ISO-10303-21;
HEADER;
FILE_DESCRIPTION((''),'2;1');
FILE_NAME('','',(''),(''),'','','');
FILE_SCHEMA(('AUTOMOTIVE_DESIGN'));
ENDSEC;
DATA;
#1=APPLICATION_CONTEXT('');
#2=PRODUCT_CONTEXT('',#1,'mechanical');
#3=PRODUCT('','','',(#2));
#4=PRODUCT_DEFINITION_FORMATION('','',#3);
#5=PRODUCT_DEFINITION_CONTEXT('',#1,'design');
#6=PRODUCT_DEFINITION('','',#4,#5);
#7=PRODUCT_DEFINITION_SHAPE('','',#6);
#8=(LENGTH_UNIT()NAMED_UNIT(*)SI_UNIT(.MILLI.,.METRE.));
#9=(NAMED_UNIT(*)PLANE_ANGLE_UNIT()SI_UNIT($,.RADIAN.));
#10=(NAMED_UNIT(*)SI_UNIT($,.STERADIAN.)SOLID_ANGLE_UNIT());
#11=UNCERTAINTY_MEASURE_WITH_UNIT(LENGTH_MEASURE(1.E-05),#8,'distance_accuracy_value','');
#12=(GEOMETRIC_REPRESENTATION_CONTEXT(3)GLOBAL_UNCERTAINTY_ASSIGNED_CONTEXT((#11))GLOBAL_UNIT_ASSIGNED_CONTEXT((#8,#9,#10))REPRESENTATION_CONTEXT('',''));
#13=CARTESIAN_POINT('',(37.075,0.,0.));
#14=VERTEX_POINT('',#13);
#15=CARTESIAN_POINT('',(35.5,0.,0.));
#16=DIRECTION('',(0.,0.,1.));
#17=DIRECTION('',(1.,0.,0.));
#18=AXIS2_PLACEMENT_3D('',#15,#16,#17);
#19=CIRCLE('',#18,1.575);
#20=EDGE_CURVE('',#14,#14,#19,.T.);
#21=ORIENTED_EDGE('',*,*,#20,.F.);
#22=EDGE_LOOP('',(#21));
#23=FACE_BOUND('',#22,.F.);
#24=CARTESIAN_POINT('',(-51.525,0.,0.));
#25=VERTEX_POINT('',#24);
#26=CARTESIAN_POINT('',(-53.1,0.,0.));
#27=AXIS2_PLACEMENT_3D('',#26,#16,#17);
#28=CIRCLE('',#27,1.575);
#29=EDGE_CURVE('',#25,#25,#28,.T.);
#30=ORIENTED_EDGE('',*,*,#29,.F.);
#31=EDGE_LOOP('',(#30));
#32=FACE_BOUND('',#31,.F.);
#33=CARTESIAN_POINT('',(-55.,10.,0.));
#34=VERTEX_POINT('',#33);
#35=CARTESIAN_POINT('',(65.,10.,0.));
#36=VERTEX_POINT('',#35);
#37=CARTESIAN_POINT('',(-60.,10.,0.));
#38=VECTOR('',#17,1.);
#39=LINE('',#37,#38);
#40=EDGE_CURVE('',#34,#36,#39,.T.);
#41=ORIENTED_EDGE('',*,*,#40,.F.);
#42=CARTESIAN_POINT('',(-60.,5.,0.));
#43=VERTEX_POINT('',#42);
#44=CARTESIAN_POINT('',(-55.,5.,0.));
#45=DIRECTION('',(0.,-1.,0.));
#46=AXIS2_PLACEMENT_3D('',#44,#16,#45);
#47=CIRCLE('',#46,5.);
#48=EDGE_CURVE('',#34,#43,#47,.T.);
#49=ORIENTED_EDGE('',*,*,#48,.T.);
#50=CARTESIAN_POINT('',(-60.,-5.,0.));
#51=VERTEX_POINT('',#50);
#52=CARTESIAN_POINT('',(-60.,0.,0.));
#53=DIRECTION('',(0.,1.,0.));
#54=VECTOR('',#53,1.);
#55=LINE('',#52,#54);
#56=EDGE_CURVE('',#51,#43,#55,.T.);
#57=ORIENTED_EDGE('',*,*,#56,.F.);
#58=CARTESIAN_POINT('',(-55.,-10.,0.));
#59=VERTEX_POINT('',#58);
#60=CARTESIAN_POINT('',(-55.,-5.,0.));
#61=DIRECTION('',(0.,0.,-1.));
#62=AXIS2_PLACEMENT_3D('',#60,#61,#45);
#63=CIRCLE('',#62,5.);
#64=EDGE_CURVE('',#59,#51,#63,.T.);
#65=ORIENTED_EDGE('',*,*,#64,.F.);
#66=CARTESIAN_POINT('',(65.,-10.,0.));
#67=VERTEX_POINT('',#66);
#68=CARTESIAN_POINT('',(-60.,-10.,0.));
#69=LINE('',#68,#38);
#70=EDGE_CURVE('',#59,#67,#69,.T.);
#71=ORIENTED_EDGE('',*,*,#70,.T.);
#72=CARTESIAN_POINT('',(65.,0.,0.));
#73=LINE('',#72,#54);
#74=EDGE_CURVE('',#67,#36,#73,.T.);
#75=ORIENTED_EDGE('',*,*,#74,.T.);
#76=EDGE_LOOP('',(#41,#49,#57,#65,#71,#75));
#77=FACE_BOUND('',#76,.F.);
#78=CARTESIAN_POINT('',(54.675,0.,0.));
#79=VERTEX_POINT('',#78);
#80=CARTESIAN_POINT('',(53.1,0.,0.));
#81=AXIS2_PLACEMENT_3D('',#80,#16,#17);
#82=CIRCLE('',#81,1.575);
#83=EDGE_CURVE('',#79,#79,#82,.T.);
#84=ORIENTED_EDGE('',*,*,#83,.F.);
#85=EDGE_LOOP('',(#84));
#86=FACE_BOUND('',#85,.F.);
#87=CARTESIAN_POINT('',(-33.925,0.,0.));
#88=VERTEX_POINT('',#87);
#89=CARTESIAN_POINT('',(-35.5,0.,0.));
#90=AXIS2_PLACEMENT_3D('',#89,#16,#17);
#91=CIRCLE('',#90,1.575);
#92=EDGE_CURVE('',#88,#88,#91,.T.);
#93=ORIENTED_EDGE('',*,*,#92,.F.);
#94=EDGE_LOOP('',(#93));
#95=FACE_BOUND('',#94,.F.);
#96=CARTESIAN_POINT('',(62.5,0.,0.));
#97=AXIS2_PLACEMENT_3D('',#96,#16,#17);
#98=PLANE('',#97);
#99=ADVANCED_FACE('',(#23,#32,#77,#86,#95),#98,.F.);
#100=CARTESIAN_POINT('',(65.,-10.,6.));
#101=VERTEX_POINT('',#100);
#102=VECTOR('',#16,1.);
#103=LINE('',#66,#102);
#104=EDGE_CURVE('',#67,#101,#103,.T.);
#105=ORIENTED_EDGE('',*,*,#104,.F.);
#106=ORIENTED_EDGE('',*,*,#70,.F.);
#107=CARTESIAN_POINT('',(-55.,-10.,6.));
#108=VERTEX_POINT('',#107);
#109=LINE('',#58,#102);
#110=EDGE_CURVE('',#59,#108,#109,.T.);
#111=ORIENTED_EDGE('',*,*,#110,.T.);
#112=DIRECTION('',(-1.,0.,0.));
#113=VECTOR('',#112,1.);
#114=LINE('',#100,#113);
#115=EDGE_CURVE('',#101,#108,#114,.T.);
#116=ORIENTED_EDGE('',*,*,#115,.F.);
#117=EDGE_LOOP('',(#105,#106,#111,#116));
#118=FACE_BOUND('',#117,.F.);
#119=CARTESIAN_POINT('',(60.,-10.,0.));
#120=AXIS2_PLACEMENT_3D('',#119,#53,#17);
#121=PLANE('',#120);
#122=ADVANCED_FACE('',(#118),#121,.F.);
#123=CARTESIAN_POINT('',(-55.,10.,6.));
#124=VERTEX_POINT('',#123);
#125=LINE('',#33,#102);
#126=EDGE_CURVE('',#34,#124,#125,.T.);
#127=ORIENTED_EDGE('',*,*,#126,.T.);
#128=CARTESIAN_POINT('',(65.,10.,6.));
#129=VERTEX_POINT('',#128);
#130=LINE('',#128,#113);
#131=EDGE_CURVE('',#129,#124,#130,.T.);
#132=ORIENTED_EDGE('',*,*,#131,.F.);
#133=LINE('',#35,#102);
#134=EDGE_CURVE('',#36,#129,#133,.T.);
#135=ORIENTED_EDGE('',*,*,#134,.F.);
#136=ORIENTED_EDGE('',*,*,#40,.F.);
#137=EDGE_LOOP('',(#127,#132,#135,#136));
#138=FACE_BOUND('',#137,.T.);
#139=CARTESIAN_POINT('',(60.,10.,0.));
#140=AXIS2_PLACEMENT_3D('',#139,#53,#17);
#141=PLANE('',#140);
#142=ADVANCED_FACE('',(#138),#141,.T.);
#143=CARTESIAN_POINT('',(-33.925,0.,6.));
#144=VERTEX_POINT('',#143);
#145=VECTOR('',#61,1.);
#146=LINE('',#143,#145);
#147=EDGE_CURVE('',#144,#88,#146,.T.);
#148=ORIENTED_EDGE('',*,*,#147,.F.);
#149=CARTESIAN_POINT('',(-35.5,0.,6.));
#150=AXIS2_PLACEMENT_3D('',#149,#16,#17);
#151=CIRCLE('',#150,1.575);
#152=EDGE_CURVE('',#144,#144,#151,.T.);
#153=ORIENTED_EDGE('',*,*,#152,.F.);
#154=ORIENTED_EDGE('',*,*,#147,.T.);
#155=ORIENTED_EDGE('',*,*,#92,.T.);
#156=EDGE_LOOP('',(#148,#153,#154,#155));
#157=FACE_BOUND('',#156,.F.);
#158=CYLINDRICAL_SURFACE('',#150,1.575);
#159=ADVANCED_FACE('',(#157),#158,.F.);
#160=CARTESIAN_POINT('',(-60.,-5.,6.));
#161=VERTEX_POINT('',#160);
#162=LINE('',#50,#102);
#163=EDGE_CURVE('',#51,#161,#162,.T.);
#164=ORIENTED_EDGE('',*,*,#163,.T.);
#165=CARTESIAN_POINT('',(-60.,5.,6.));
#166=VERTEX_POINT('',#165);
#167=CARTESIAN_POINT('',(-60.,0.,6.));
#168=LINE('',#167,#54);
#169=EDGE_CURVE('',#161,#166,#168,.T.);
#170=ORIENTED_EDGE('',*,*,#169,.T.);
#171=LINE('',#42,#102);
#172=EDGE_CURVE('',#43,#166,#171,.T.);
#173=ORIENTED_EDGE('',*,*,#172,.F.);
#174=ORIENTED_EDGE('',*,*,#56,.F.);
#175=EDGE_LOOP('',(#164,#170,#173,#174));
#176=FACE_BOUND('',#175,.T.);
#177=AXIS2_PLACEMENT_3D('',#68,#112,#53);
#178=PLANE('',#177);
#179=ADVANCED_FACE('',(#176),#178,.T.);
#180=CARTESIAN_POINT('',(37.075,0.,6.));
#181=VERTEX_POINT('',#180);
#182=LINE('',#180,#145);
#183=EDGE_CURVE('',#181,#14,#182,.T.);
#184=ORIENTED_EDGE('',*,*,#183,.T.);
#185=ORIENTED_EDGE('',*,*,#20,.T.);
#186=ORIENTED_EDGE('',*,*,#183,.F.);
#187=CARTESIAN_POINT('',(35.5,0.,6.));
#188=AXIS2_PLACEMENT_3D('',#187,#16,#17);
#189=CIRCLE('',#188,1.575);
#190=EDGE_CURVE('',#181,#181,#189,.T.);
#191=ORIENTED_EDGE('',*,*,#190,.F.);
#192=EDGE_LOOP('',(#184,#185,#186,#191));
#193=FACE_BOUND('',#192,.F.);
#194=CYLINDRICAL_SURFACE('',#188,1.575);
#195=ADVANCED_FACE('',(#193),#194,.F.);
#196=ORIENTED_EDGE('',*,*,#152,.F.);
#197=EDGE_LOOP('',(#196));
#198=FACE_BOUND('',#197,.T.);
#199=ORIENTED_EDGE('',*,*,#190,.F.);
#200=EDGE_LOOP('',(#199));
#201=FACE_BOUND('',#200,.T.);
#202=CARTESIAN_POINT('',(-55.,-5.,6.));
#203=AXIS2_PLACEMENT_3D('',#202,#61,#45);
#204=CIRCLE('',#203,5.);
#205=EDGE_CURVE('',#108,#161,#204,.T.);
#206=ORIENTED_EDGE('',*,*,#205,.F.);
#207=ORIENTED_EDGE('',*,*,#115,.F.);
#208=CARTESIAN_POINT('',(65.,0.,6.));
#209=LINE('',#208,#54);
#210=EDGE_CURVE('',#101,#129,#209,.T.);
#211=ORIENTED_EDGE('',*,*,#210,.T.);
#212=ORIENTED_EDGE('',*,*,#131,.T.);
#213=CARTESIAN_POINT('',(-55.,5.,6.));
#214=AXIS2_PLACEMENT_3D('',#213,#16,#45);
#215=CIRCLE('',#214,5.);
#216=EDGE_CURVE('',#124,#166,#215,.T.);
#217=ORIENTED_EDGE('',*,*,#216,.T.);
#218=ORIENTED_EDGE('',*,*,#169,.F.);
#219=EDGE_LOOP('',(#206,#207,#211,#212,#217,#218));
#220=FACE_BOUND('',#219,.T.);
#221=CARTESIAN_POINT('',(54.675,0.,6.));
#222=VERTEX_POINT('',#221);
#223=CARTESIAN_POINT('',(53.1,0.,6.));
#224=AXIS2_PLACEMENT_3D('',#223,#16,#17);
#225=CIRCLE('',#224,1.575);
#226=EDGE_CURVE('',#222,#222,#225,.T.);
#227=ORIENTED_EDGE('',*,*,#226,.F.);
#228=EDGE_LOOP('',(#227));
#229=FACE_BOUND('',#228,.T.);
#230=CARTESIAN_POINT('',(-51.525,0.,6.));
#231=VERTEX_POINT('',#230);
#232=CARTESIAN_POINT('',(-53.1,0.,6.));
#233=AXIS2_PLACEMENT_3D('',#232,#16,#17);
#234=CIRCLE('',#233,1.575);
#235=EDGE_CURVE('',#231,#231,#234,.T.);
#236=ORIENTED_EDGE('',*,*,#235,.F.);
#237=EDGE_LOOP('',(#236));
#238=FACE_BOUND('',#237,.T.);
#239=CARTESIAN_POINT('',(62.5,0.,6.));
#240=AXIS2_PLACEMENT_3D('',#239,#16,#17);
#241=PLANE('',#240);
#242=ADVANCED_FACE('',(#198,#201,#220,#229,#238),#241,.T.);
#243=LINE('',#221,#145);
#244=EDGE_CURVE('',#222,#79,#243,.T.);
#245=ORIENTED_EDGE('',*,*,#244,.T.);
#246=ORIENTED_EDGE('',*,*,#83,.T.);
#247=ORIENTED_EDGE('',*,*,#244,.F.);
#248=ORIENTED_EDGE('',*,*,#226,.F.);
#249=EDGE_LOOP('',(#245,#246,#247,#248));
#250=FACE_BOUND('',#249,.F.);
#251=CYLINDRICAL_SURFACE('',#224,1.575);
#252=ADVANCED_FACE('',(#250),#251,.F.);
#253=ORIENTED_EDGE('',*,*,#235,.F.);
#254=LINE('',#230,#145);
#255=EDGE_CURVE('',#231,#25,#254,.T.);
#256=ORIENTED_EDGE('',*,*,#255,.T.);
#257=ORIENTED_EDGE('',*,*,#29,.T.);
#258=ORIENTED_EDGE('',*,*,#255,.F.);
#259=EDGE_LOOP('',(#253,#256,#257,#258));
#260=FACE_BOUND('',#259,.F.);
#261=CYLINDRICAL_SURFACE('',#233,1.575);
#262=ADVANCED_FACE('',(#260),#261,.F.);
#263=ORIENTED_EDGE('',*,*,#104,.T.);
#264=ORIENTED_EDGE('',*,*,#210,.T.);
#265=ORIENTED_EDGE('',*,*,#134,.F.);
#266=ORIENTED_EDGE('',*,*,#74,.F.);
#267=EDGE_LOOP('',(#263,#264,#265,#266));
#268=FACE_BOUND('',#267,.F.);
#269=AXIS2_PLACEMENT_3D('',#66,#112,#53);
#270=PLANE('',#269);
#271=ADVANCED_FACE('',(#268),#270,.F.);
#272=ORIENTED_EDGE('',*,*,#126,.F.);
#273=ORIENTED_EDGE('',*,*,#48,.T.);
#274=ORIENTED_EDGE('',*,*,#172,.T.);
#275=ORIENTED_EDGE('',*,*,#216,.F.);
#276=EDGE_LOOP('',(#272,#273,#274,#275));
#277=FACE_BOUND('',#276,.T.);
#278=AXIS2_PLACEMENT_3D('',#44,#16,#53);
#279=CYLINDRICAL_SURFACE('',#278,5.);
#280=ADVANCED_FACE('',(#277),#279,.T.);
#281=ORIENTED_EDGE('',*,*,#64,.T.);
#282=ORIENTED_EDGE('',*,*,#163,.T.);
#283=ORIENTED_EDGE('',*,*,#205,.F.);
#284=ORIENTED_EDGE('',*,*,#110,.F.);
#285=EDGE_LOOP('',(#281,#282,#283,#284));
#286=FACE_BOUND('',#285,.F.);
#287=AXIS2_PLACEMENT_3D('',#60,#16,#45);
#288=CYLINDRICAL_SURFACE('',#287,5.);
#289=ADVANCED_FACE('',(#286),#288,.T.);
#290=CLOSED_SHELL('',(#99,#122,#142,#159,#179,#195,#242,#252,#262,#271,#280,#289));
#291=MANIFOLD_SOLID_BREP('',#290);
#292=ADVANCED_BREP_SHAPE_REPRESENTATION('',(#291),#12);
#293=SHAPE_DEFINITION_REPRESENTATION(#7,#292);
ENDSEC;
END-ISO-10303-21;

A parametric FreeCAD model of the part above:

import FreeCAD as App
import Part
import Sketcher
from FreeCAD import Vector


def edges_at(feature, points):
    """Names of the edges that pass closest to the given points."""
    edges = feature.Shape.Edges
    near = lambda p: min(range(len(edges)), key=lambda i: edges[i].distToShape(Part.Vertex(*p))[0])
    return sorted({f"Edge{near(p) + 1}" for p in points})

doc = App.newDocument("Part")
body = doc.addObject("PartDesign::Body", "Body")

# Sketch on XY plane
sketch1 = doc.addObject("Sketcher::SketchObject", "Sketch")
body.addObject(sketch1)
sketch1.AttachmentSupport = (doc.XY_Plane, [""])
sketch1.MapMode = "FlatFace"
sketch1.addGeometry(Part.LineSegment(Vector(-60, 10, 0), Vector(-60, -10, 0)), False)
sketch1.addGeometry(Part.LineSegment(Vector(-60, -10, 0), Vector(60, -10, 0)), False)
sketch1.addGeometry(Part.LineSegment(Vector(60, -10, 0), Vector(60, 10, 0)), False)
sketch1.addGeometry(Part.LineSegment(Vector(60, 10, 0), Vector(-60, 10, 0)), False)
sketch1.addConstraint(Sketcher.Constraint("Coincident", 0, 2, 1, 1))
sketch1.addConstraint(Sketcher.Constraint("Coincident", 1, 2, 2, 1))
sketch1.addConstraint(Sketcher.Constraint("Coincident", 2, 2, 3, 1))
sketch1.addConstraint(Sketcher.Constraint("Coincident", 3, 2, 0, 1))
sketch1.addConstraint(Sketcher.Constraint("Vertical", 0))
sketch1.addConstraint(Sketcher.Constraint("Horizontal", 1))
sketch1.addConstraint(Sketcher.Constraint("Vertical", 2))
sketch1.addConstraint(Sketcher.Constraint("Horizontal", 3))
sketch1.addConstraint(Sketcher.Constraint("Symmetric", 0, 2, 2, 2, -1, 1))
sketch1.addConstraint(Sketcher.Constraint("DistanceX", 1, 1, 1, 2, 120.0))
sketch1.addConstraint(Sketcher.Constraint("DistanceY", 0, 2, 0, 1, 20.0))
pad1 = doc.addObject("PartDesign::Pad", "Pad")
body.addObject(pad1)
pad1.Profile = sketch1
pad1.Length = 6

# Sketch on XY plane
sketch2 = doc.addObject("Sketcher::SketchObject", "Sketch001")
body.addObject(sketch2)
sketch2.AttachmentSupport = (doc.XY_Plane, [""])
sketch2.MapMode = "FlatFace"
sketch2.AttachmentOffset = App.Placement(Vector(0, 0, 6), App.Rotation())
sketch2.addGeometry(Part.Circle(Vector(-53.1, 0, 0), Vector(0, 0, 1), 1.575), False)
sketch2.addGeometry(Part.Circle(Vector(-35.5, 0, 0), Vector(0, 0, 1), 1.575), False)
sketch2.addGeometry(Part.Circle(Vector(53.1, 0, 0), Vector(0, 0, 1), 1.575), False)
sketch2.addGeometry(Part.Circle(Vector(35.5, 0, 0), Vector(0, 0, 1), 1.575), False)
sketch2.addConstraint(Sketcher.Constraint("Equal", 0, 1))
sketch2.addConstraint(Sketcher.Constraint("Equal", 1, 2))
sketch2.addConstraint(Sketcher.Constraint("Equal", 2, 3))
sketch2.addConstraint(Sketcher.Constraint("Symmetric", 0, 3, 2, 3, -1, 1))
sketch2.addConstraint(Sketcher.Constraint("Symmetric", 1, 3, 3, 3, -1, 1))
sketch2.addConstraint(Sketcher.Constraint("PointOnObject", 0, 3, -1))
sketch2.addConstraint(Sketcher.Constraint("PointOnObject", 1, 3, -1))
sketch2.addConstraint(Sketcher.Constraint("Diameter", 0, 3.15))
sketch2.addConstraint(Sketcher.Constraint("DistanceX", 1, 3, 3, 3, 71.0))
sketch2.addConstraint(Sketcher.Constraint("DistanceX", 0, 3, -1, 1, 53.1))
pocket1 = doc.addObject("PartDesign::Pocket", "Pocket")
body.addObject(pocket1)
pocket1.Profile = sketch2
pocket1.Type = "ThroughAll"

# Sketch on XY plane
sketch3 = doc.addObject("Sketcher::SketchObject", "Sketch002")
body.addObject(sketch3)
sketch3.AttachmentSupport = (doc.XY_Plane, [""])
sketch3.MapMode = "FlatFace"
sketch3.addGeometry(Part.LineSegment(Vector(60, 10, 0), Vector(60, -10, 0)), False)
sketch3.addGeometry(Part.LineSegment(Vector(60, -10, 0), Vector(65, -10, 0)), False)
sketch3.addGeometry(Part.LineSegment(Vector(65, -10, 0), Vector(65, 10, 0)), False)
sketch3.addGeometry(Part.LineSegment(Vector(65, 10, 0), Vector(60, 10, 0)), False)
sketch3.addConstraint(Sketcher.Constraint("Coincident", 0, 2, 1, 1))
sketch3.addConstraint(Sketcher.Constraint("Coincident", 1, 2, 2, 1))
sketch3.addConstraint(Sketcher.Constraint("Coincident", 2, 2, 3, 1))
sketch3.addConstraint(Sketcher.Constraint("Coincident", 3, 2, 0, 1))
sketch3.addConstraint(Sketcher.Constraint("Vertical", 0))
sketch3.addConstraint(Sketcher.Constraint("Horizontal", 1))
sketch3.addConstraint(Sketcher.Constraint("Vertical", 2))
sketch3.addConstraint(Sketcher.Constraint("Horizontal", 3))
sketch3.addConstraint(Sketcher.Constraint("DistanceX", 1, 1, 1, 2, 5.0))
sketch3.addConstraint(Sketcher.Constraint("DistanceY", 0, 2, 0, 1, 20.0))
sketch3.addConstraint(Sketcher.Constraint("DistanceX", -1, 1, 0, 2, 60.0))
sketch3.addConstraint(Sketcher.Constraint("DistanceY", 0, 2, -1, 1, 10.0))
pad2 = doc.addObject("PartDesign::Pad", "Pad001")
body.addObject(pad2)
pad2.Profile = sketch3
pad2.Length = 6
doc.recompute()

fillet = doc.addObject("PartDesign::Fillet", "Fillet")
body.addObject(fillet)
fillet.Base = (pad2, edges_at(pad2, [(-60, -10, 3), (-60, 10, 3)]))
fillet.Radius = 5

doc.recompute()
